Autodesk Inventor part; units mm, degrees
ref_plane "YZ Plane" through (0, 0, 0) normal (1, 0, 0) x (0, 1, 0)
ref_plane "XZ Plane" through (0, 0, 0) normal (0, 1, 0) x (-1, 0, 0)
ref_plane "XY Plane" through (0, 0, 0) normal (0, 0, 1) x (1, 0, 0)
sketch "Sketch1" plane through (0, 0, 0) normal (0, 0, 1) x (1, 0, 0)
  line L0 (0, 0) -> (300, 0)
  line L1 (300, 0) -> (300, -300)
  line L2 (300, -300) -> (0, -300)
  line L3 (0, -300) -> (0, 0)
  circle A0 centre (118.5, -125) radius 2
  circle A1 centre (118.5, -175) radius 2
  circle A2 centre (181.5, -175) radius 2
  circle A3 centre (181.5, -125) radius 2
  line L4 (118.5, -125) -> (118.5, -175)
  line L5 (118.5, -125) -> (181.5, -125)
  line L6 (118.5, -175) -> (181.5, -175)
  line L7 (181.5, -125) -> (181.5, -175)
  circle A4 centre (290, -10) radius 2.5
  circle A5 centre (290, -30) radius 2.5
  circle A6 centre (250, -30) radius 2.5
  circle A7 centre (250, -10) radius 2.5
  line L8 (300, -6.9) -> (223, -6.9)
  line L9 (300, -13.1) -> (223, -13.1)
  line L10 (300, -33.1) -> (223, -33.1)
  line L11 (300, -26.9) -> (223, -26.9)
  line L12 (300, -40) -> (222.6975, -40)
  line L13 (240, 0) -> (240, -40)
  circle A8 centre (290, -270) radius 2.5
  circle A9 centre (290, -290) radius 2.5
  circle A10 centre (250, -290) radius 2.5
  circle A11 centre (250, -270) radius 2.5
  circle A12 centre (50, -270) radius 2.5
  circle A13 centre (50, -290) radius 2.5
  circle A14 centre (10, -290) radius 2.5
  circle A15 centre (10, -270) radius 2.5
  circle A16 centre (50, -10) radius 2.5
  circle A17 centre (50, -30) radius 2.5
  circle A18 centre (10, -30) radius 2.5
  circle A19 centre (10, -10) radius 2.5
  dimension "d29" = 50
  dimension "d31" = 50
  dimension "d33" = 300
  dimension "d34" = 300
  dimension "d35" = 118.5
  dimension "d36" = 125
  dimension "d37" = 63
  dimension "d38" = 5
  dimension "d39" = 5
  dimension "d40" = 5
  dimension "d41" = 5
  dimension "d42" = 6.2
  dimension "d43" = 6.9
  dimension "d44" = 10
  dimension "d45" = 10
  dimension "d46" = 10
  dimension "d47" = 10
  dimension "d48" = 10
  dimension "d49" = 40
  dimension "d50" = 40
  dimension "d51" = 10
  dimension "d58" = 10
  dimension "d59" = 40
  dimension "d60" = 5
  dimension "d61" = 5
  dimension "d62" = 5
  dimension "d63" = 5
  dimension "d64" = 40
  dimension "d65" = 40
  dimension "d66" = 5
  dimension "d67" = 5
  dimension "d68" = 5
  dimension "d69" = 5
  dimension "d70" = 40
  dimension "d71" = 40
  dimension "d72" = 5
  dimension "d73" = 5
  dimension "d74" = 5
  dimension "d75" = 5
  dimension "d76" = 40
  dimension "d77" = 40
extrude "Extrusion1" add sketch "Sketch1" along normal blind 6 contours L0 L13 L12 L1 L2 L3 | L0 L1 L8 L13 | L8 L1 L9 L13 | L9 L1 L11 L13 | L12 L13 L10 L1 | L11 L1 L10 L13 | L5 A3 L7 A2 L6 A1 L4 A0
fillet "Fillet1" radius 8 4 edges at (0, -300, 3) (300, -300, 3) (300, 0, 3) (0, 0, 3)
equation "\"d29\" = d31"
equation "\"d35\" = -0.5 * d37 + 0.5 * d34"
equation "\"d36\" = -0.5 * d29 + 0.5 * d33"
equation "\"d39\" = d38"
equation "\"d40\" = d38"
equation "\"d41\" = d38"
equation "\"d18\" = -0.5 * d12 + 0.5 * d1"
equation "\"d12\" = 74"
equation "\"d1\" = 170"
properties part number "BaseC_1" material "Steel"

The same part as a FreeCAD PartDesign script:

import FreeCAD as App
import Part
import Sketcher
from FreeCAD import Vector


def edges_at(feature, points):
    """Names of the edges that pass closest to the given points."""
    edges = feature.Shape.Edges
    near = lambda p: min(range(len(edges)), key=lambda i: edges[i].distToShape(Part.Vertex(*p))[0])
    return sorted({f"Edge{near(p) + 1}" for p in points})


def add_polygon(sketch, points):
    """Adds a closed chain of lines whose ends are joined by coincident constraints."""
    first, n = sketch.GeometryCount, len(points)
    for a, b in zip(points, points[1:] + points[:1]):
        sketch.addGeometry(Part.LineSegment(App.Vector(*a, 0), App.Vector(*b, 0)), False)
    for i in range(n):
        sketch.addConstraint(Sketcher.Constraint("Coincident", first + i, 2, first + (i + 1) % n, 1))

doc = App.newDocument("Part")
body = doc.addObject("PartDesign::Body", "Body")

# Sketch on XY plane
sketch1 = body.newObject("Sketcher::SketchObject", "Sketch")
sketch1.AttachmentSupport = (doc.getObject("XY_Plane"), [""])
sketch1.MapMode = "FlatFace"
add_polygon(sketch1, [(0, 0), (0, -300), (300, -300), (300, 0)])  # lines 0-3
sketch1.addGeometry(Part.Circle(Vector(10, -290, 0), Vector(0, 0, 1), 2.5), False)  # 4
sketch1.addGeometry(Part.Circle(Vector(10, -270, 0), Vector(0, 0, 1), 2.5), False)  # 5
sketch1.addGeometry(Part.Circle(Vector(50, -290, 0), Vector(0, 0, 1), 2.5), False)  # 6
sketch1.addGeometry(Part.Circle(Vector(50, -270, 0), Vector(0, 0, 1), 2.5), False)  # 7
sketch1.addGeometry(Part.Circle(Vector(250, -290, 0), Vector(0, 0, 1), 2.5), False)  # 8
sketch1.addGeometry(Part.Circle(Vector(250, -270, 0), Vector(0, 0, 1), 2.5), False)  # 9
sketch1.addGeometry(Part.Circle(Vector(290, -290, 0), Vector(0, 0, 1), 2.5), False)  # 10
sketch1.addGeometry(Part.Circle(Vector(290, -270, 0), Vector(0, 0, 1), 2.5), False)  # 11
sketch1.addGeometry(Part.Circle(Vector(10, -30, 0), Vector(0, 0, 1), 2.5), False)  # 12
sketch1.addGeometry(Part.Circle(Vector(10, -10, 0), Vector(0, 0, 1), 2.5), False)  # 13
sketch1.addGeometry(Part.Circle(Vector(50, -30, 0), Vector(0, 0, 1), 2.5), False)  # 14
sketch1.addGeometry(Part.Circle(Vector(50, -10, 0), Vector(0, 0, 1), 2.5), False)  # 15
sketch1.addGeometry(Part.Circle(Vector(118.5, -125, 0), Vector(0, 0, 1), 2), False)  # 16
sketch1.addGeometry(Part.Circle(Vector(118.5, -175, 0), Vector(0, 0, 1), 2), False)  # 17
sketch1.addGeometry(Part.Circle(Vector(181.5, -175, 0), Vector(0, 0, 1), 2), False)  # 18
sketch1.addGeometry(Part.Circle(Vector(181.5, -125, 0), Vector(0, 0, 1), 2), False)  # 19
sketch1.addGeometry(Part.Circle(Vector(250, -10, 0), Vector(0, 0, 1), 2.5), False)  # 20
sketch1.addGeometry(Part.Circle(Vector(290, -10, 0), Vector(0, 0, 1), 2.5), False)  # 21
sketch1.addGeometry(Part.Circle(Vector(250, -30, 0), Vector(0, 0, 1), 2.5), False)  # 22
sketch1.addGeometry(Part.Circle(Vector(290, -30, 0), Vector(0, 0, 1), 2.5), False)  # 23
sketch1.addConstraint(Sketcher.Constraint("Vertical", 0))
sketch1.addConstraint(Sketcher.Constraint("Horizontal", 1))
sketch1.addConstraint(Sketcher.Constraint("Vertical", 2))
sketch1.addConstraint(Sketcher.Constraint("Horizontal", 3))
sketch1.addConstraint(Sketcher.Constraint("Coincident", 3, 2, -1, 1))
sketch1.addConstraint(Sketcher.Constraint("Equal", 4, 5))
sketch1.addConstraint(Sketcher.Constraint("Equal", 5, 6))
sketch1.addConstraint(Sketcher.Constraint("Equal", 6, 7))
sketch1.addConstraint(Sketcher.Constraint("Equal", 7, 8))
sketch1.addConstraint(Sketcher.Constraint("Equal", 8, 9))
sketch1.addConstraint(Sketcher.Constraint("Equal", 9, 10))
sketch1.addConstraint(Sketcher.Constraint("Equal", 10, 11))
sketch1.addConstraint(Sketcher.Constraint("Equal", 11, 12))
sketch1.addConstraint(Sketcher.Constraint("Equal", 12, 13))
sketch1.addConstraint(Sketcher.Constraint("Equal", 13, 14))
sketch1.addConstraint(Sketcher.Constraint("Equal", 14, 15))
sketch1.addConstraint(Sketcher.Constraint("Equal", 16, 17))
sketch1.addConstraint(Sketcher.Constraint("Equal", 17, 18))
sketch1.addConstraint(Sketcher.Constraint("Equal", 18, 19))
sketch1.addConstraint(Sketcher.Constraint("Equal", 15, 20))
sketch1.addConstraint(Sketcher.Constraint("Equal", 20, 21))
sketch1.addConstraint(Sketcher.Constraint("Equal", 21, 22))
sketch1.addConstraint(Sketcher.Constraint("Equal", 22, 23))
sketch1.addConstraint(Sketcher.Constraint("Horizontal", 4, 3, 6, 3))
sketch1.addConstraint(Sketcher.Constraint("Horizontal", 5, 3, 7, 3))
sketch1.addConstraint(Sketcher.Constraint("Horizontal", 6, 3, 8, 3))
sketch1.addConstraint(Sketcher.Constraint("Horizontal", 7, 3, 9, 3))
sketch1.addConstraint(Sketcher.Constraint("Horizontal", 8, 3, 10, 3))
sketch1.addConstraint(Sketcher.Constraint("Horizontal", 9, 3, 11, 3))
sketch1.addConstraint(Sketcher.Constraint("Horizontal", 12, 3, 14, 3))
sketch1.addConstraint(Sketcher.Constraint("Horizontal", 13, 3, 15, 3))
sketch1.addConstraint(Sketcher.Constraint("Horizontal", 17, 3, 18, 3))
sketch1.addConstraint(Sketcher.Constraint("Horizontal", 16, 3, 19, 3))
sketch1.addConstraint(Sketcher.Constraint("Horizontal", 15, 3, 20, 3))
sketch1.addConstraint(Sketcher.Constraint("Horizontal", 20, 3, 21, 3))
sketch1.addConstraint(Sketcher.Constraint("Horizontal", 14, 3, 22, 3))
sketch1.addConstraint(Sketcher.Constraint("Horizontal", 22, 3, 23, 3))
sketch1.addConstraint(Sketcher.Constraint("Vertical", 4, 3, 5, 3))
sketch1.addConstraint(Sketcher.Constraint("Vertical", 6, 3, 7, 3))
sketch1.addConstraint(Sketcher.Constraint("Vertical", 8, 3, 9, 3))
sketch1.addConstraint(Sketcher.Constraint("Vertical", 10, 3, 11, 3))
sketch1.addConstraint(Sketcher.Constraint("Vertical", 5, 3, 12, 3))
sketch1.addConstraint(Sketcher.Constraint("Vertical", 12, 3, 13, 3))
sketch1.addConstraint(Sketcher.Constraint("Vertical", 7, 3, 14, 3))
sketch1.addConstraint(Sketcher.Constraint("Vertical", 14, 3, 15, 3))
sketch1.addConstraint(Sketcher.Constraint("Vertical", 16, 3, 17, 3))
sketch1.addConstraint(Sketcher.Constraint("Vertical", 18, 3, 19, 3))
sketch1.addConstraint(Sketcher.Constraint("Vertical", 9, 3, 20, 3))
sketch1.addConstraint(Sketcher.Constraint("Vertical", 11, 3, 21, 3))
sketch1.addConstraint(Sketcher.Constraint("Vertical", 20, 3, 22, 3))
sketch1.addConstraint(Sketcher.Constraint("Vertical", 21, 3, 23, 3))
sketch1.addConstraint(Sketcher.Constraint("Equal", 3, 0))
sketch1.addConstraint(Sketcher.Constraint("Diameter", 4, 5.0))
sketch1.addConstraint(Sketcher.Constraint("DistanceX", 1, 1, 1, 2, 300.0))
sketch1.addConstraint(Sketcher.Constraint("Diameter", 16, 4.0))
sketch1.addConstraint(Sketcher.Constraint("DistanceX", -1, 1, 4, 3, 10.0))
sketch1.addConstraint(Sketcher.Constraint("DistanceX", -1, 1, 6, 3, 50.0))
sketch1.addConstraint(Sketcher.Constraint("DistanceY", 13, 3, -1, 1, 10.0))
sketch1.addConstraint(Sketcher.Constraint("DistanceY", 16, 3, -1, 1, 125.0))
sketch1.addConstraint(Sketcher.Constraint("DistanceX", 8, 3, 10, 3, 40.0))
sketch1.addConstraint(Sketcher.Constraint("DistanceY", 17, 3, 16, 3, 50.0))
sketch1.addConstraint(Sketcher.Constraint("DistanceX", 17, 3, 18, 3, 63.0))
sketch1.addConstraint(Sketcher.Constraint("DistanceY", 0, 2, 4, 3, 10.0))
sketch1.addConstraint(Sketcher.Constraint("DistanceX", 10, 3, 1, 2, 10.0))
sketch1.addConstraint(Sketcher.Constraint("DistanceX", -1, 1, 16, 3, 118.5))
sketch1.addConstraint(Sketcher.Constraint("DistanceY", 5, 3, -1, 1, 270.0))
sketch1.addConstraint(Sketcher.Constraint("DistanceY", 12, 3, -1, 1, 30.0))
pad1 = body.newObject("PartDesign::Pad", "Pad")
pad1.Profile = sketch1
pad1.Length = 6
doc.recompute()

fillet = body.newObject("PartDesign::Fillet", "Fillet")
fillet.Base = (pad1, edges_at(pad1, [
    (0, -300, 3),
    (300, -300, 3),
    (300, 0, 3),
    (0, 0, 3),
]))
fillet.Radius = 8

doc.recompute()
